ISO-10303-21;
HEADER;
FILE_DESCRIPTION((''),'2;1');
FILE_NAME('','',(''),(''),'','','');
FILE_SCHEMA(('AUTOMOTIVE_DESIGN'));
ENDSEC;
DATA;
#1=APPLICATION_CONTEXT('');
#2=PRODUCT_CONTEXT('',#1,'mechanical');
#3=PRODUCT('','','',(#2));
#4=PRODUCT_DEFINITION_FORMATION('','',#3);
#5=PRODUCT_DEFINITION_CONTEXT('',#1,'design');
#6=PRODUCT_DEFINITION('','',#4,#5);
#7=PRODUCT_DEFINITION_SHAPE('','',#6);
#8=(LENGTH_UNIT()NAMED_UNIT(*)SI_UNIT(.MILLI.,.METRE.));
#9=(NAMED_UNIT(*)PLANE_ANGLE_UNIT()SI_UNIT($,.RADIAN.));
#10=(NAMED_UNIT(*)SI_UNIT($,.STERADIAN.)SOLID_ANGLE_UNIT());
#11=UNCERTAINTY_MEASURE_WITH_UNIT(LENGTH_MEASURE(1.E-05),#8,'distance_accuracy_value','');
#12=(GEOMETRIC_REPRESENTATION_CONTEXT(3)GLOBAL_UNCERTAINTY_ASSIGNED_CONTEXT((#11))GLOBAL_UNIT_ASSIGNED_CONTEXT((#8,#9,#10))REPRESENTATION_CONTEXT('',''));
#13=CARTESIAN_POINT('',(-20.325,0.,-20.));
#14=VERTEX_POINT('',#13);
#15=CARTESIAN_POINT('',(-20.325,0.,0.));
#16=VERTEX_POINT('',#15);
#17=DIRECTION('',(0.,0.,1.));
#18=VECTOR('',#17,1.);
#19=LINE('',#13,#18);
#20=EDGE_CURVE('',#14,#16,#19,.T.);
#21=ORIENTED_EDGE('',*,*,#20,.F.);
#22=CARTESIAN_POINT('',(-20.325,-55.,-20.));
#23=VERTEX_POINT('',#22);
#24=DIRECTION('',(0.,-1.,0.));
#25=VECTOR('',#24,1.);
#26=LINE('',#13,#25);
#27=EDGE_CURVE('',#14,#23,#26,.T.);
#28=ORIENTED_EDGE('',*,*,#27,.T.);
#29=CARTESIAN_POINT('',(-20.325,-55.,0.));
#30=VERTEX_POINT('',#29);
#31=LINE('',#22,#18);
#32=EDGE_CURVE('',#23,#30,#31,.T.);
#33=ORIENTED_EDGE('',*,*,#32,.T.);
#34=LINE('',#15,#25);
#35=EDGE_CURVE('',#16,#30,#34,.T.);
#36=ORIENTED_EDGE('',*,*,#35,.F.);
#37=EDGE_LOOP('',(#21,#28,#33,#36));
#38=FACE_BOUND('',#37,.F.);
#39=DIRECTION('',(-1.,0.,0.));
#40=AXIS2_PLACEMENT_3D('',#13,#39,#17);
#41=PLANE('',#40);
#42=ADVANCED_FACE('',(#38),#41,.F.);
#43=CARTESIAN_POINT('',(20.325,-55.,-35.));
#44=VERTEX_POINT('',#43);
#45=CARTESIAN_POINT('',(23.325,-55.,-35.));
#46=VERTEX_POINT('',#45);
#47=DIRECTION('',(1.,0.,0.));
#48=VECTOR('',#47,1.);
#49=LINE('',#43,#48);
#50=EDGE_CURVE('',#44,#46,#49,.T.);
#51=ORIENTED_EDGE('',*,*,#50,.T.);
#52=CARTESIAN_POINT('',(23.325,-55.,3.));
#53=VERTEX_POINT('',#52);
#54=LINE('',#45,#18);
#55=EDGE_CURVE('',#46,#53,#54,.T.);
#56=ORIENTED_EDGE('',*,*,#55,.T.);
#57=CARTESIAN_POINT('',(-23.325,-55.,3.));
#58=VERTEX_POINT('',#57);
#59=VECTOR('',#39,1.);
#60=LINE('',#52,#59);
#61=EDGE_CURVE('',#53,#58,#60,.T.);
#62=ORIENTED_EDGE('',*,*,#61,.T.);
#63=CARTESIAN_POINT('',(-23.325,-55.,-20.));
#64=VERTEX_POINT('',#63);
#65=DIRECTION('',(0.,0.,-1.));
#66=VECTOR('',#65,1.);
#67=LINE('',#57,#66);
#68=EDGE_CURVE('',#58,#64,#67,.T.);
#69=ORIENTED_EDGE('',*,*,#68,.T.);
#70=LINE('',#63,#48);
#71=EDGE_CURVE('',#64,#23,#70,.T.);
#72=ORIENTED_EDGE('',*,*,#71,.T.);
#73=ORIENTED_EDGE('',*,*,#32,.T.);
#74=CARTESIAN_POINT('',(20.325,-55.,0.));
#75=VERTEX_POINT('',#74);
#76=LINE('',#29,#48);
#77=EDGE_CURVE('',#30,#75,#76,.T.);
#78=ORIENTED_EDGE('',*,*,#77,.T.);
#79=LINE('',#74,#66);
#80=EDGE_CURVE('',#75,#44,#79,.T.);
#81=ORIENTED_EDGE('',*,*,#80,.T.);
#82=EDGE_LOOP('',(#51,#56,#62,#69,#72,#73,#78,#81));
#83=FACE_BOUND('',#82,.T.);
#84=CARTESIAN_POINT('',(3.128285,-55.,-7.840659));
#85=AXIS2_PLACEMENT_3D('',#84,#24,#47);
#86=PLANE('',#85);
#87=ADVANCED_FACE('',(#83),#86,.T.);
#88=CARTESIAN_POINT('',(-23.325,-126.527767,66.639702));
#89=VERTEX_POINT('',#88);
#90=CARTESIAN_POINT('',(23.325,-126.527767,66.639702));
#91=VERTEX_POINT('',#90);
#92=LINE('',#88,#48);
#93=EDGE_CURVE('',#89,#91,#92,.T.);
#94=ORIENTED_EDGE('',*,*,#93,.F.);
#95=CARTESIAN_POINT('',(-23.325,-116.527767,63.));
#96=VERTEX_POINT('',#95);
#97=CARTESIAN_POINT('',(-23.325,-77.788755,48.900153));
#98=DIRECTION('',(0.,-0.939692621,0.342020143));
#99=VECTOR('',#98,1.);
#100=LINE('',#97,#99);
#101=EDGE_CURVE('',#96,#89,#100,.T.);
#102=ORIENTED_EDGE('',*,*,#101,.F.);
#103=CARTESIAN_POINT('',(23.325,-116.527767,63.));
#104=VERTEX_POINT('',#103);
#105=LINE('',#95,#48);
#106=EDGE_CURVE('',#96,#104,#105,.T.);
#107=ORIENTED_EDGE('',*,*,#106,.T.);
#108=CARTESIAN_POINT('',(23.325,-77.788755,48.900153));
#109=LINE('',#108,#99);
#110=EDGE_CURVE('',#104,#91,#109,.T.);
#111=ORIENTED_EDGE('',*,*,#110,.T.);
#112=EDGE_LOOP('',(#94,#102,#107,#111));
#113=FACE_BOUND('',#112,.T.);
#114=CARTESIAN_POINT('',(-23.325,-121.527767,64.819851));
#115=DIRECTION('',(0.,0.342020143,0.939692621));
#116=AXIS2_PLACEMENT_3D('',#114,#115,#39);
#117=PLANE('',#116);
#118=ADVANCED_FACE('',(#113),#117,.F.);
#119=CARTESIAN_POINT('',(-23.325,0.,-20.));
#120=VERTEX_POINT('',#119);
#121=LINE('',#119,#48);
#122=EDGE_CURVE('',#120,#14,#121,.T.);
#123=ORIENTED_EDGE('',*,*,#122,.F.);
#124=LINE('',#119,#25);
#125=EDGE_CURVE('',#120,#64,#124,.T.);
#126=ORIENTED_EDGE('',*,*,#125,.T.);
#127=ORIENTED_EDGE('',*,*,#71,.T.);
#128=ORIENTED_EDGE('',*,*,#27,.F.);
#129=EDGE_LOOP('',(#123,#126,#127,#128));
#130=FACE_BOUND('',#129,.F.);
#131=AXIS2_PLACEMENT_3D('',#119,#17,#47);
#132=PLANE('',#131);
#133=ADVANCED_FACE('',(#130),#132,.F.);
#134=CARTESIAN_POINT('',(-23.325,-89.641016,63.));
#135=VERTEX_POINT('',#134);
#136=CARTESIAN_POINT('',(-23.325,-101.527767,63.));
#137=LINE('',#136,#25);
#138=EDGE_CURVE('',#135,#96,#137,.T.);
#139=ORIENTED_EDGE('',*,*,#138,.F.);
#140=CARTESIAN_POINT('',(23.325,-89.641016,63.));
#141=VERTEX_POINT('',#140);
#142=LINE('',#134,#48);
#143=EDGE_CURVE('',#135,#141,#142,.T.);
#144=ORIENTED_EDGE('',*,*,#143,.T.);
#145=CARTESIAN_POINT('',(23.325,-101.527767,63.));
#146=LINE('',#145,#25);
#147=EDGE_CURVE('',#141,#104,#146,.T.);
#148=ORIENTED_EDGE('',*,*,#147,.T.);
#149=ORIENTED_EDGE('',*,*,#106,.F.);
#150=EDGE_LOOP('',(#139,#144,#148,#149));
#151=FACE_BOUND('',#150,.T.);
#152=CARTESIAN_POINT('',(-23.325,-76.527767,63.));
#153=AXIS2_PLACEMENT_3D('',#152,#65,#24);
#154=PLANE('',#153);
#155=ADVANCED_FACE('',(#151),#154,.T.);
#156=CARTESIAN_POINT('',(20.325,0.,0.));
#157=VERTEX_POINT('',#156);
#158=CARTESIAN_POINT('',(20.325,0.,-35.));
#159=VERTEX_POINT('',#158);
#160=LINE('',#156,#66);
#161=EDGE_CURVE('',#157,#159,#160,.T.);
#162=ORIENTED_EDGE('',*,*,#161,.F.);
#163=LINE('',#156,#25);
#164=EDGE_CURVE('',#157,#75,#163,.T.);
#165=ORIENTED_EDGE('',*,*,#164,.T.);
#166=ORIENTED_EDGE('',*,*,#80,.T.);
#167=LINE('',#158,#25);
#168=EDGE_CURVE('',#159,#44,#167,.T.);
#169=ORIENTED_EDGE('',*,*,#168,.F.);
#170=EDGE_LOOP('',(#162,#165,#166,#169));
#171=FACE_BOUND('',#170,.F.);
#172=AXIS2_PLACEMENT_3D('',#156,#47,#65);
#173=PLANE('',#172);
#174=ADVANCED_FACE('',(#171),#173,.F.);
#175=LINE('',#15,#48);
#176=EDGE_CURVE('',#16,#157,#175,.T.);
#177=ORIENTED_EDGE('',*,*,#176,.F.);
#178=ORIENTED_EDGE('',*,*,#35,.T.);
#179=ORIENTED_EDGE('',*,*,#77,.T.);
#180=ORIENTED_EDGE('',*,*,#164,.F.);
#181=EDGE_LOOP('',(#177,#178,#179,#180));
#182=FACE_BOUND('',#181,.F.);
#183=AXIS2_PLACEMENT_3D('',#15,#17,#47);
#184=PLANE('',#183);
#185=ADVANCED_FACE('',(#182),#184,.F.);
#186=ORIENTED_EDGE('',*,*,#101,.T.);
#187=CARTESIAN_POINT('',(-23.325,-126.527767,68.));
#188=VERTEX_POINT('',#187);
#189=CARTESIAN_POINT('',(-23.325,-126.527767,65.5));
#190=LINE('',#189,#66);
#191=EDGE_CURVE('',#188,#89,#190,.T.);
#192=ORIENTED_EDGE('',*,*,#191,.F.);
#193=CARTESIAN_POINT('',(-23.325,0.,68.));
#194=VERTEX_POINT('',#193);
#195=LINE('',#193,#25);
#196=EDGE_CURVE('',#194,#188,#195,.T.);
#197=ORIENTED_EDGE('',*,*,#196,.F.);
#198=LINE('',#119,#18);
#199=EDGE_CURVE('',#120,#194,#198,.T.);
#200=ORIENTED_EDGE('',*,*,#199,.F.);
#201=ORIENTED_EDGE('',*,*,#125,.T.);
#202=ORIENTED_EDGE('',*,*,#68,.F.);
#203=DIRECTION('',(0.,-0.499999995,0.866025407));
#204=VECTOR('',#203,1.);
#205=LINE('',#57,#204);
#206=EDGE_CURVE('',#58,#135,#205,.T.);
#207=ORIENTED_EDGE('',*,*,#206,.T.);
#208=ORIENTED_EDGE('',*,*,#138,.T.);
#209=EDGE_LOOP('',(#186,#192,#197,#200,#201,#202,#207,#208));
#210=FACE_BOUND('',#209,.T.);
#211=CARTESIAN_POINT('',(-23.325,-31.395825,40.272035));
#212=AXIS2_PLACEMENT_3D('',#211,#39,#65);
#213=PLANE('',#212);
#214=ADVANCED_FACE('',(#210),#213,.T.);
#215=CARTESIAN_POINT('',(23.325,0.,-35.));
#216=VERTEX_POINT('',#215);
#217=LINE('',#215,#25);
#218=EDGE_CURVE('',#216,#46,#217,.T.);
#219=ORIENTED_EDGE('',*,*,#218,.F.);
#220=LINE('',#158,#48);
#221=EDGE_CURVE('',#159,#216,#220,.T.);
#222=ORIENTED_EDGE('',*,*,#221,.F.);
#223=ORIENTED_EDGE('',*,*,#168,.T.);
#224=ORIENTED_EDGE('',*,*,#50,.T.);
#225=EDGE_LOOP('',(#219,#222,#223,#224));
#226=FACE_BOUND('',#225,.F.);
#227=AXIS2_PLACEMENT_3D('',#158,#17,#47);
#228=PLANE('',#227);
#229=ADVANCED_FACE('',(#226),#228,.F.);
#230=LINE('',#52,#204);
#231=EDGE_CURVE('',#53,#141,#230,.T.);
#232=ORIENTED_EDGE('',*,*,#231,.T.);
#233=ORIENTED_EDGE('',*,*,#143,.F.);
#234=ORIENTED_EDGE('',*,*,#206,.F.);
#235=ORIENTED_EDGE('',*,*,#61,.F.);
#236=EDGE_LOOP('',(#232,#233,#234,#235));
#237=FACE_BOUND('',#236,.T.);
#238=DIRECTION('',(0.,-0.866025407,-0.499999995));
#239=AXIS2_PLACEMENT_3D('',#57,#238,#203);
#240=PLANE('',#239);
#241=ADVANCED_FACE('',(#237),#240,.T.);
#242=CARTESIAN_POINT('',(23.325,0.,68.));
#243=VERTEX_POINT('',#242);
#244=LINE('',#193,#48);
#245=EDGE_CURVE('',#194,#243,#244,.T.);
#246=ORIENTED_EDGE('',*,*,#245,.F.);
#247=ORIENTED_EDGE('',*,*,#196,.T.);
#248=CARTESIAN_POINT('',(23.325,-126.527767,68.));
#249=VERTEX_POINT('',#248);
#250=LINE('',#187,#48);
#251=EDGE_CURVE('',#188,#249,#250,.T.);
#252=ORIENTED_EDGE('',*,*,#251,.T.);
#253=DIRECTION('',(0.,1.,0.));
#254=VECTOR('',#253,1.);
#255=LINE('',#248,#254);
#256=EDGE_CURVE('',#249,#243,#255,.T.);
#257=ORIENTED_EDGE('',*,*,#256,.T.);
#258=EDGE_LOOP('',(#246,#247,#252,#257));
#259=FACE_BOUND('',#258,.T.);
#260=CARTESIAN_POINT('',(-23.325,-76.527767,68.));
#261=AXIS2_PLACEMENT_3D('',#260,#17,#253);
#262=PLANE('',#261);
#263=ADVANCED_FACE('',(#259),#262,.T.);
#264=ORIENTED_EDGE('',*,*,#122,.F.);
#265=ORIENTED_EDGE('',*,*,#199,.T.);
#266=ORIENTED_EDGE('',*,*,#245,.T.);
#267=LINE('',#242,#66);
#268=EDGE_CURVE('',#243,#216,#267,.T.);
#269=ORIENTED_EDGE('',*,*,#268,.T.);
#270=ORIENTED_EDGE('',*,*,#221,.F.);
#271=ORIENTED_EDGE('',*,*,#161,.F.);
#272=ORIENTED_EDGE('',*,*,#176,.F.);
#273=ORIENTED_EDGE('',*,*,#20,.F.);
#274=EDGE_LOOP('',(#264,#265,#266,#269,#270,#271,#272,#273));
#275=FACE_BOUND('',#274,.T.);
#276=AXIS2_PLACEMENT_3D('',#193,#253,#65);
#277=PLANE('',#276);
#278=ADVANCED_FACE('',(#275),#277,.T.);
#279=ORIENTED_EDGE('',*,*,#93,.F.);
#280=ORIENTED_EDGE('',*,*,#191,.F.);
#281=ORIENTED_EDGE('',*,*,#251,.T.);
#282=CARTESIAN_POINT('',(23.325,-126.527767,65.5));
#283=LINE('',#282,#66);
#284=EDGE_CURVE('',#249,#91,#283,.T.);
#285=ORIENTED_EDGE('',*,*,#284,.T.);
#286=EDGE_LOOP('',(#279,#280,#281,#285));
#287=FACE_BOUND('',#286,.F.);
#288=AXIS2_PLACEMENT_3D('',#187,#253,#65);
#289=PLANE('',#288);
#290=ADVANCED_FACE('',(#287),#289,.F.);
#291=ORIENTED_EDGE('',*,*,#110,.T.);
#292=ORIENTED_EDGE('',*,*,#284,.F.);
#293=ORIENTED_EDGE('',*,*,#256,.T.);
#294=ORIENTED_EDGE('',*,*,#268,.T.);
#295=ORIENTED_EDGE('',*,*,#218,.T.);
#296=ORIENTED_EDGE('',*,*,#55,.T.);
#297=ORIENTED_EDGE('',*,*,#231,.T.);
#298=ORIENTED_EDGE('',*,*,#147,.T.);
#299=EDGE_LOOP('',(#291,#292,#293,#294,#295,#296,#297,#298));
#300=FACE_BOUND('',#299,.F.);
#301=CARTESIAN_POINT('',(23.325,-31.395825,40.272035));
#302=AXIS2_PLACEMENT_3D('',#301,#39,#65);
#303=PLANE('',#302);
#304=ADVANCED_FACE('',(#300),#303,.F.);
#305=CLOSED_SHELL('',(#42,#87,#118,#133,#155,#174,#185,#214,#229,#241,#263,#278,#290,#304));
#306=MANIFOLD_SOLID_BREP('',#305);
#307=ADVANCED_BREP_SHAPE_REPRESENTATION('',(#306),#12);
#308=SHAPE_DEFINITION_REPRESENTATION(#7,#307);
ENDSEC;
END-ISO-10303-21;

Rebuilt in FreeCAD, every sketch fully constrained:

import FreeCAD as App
import Part
import Sketcher
from FreeCAD import Vector
Q = App.Units.Quantity


def edges_at(feature, points):
    """Names of the edges that pass closest to the given points."""
    edges = feature.Shape.Edges
    near = lambda p: min(range(len(edges)), key=lambda i: edges[i].distToShape(Part.Vertex(*p))[0])
    return sorted({f"Edge{near(p) + 1}" for p in points})

doc = App.newDocument("Part")
params = doc.addObject("Spreadsheet::Sheet", "Params")
for row, (alias, value) in enumerate([
    ("sketch1_width", "3 mm"),
    ("sketch1_height", "23 mm"),
    ("sketch1_height2", "20 mm"),
    ("sketch1_height3", "35 mm"),
    ("sketch1_width2", "40.65 mm"),
    ("pad1_length", "55 mm"),
    ("sketch2_width", "16 mm"),
    ("pad2_length", "46.65 mm"),
    ("sketch3_width", "50 mm"),
    ("sketch3_height", "5 mm"),
    ("pad3_length", "46.65 mm"),
    ("sketch4_width", "39 mm"),
    ("sketch4_height", "65 mm"),
    ("pad4_length", "46.65 mm"),
    ("chamfer_size", "10 mm"),
], start=1):
    params.set(f"A{row}", alias)
    params.set(f"B{row}", "=" + value)
    params.setAlias(f"B{row}", alias)

body = doc.addObject("PartDesign::Body", "Body")

sketch1 = body.newObject("Sketcher::SketchObject", "Sketch")
sketch1.AttachmentSupport = (doc.getObject("XZ_Plane"), [""])
sketch1.MapMode = "FlatFace"
sketch1.addGeometry(Part.LineSegment(Vector(-23.3, 3, 0), Vector(-23.3, -20, 0)), False)
sketch1.addGeometry(Part.LineSegment(Vector(-23.3, -20, 0), Vector(-20.3, -20, 0)), False)
sketch1.addGeometry(Part.LineSegment(Vector(-20.3, -20, 0), Vector(-20.3, 0, 0)), False)
sketch1.addGeometry(Part.LineSegment(Vector(-20.3, 0, 0), Vector(20.3, 0, 0)), False)
sketch1.addGeometry(Part.LineSegment(Vector(20.3, 0, 0), Vector(20.3, -35, 0)), False)
sketch1.addGeometry(Part.LineSegment(Vector(20.3, -35, 0), Vector(23.3, -35, 0)), False)
sketch1.addGeometry(Part.LineSegment(Vector(23.3, -35, 0), Vector(23.3, 3, 0)), False)
sketch1.addGeometry(Part.LineSegment(Vector(23.3, 3, 0), Vector(-23.3, 3, 0)), False)
sketch1.addConstraint(Sketcher.Constraint("Coincident", 0, 2, 1, 1))
sketch1.addConstraint(Sketcher.Constraint("Coincident", 1, 2, 2, 1))
sketch1.addConstraint(Sketcher.Constraint("Coincident", 2, 2, 3, 1))
sketch1.addConstraint(Sketcher.Constraint("Coincident", 3, 2, 4, 1))
sketch1.addConstraint(Sketcher.Constraint("Coincident", 4, 2, 5, 1))
sketch1.addConstraint(Sketcher.Constraint("Coincident", 5, 2, 6, 1))
sketch1.addConstraint(Sketcher.Constraint("Coincident", 6, 2, 7, 1))
sketch1.addConstraint(Sketcher.Constraint("Coincident", 7, 2, 0, 1))
sketch1.addConstraint(Sketcher.Constraint("Vertical", 0))
sketch1.addConstraint(Sketcher.Constraint("Horizontal", 1))
sketch1.addConstraint(Sketcher.Constraint("Vertical", 2))
sketch1.addConstraint(Sketcher.Constraint("Horizontal", 3))
sketch1.addConstraint(Sketcher.Constraint("Vertical", 4))
sketch1.addConstraint(Sketcher.Constraint("Horizontal", 5))
sketch1.addConstraint(Sketcher.Constraint("Vertical", 6))
sketch1.addConstraint(Sketcher.Constraint("Horizontal", 7))
sketch1.addConstraint(Sketcher.Constraint("Symmetric", 2, 2, 3, 2, -1, 1))
sketch1.addConstraint(Sketcher.Constraint("Equal", 1, 5))
sketch1.addConstraint(Sketcher.Constraint("DistanceX", 1, 1, 1, 2, Q("3 mm")))
sketch1.addConstraint(Sketcher.Constraint("DistanceY", 0, 2, 0, 1, Q("23 mm")))
sketch1.addConstraint(Sketcher.Constraint("DistanceY", 2, 1, 2, 2, Q("20 mm")))
sketch1.addConstraint(Sketcher.Constraint("DistanceY", 4, 2, 4, 1, Q("35 mm")))
sketch1.addConstraint(Sketcher.Constraint("DistanceX", 3, 1, 3, 2, Q("40.65 mm")))
sketch1.setExpression("Constraints[18]", "Params.sketch1_width")
sketch1.setExpression("Constraints[19]", "Params.sketch1_height")
sketch1.setExpression("Constraints[20]", "Params.sketch1_height2")
sketch1.setExpression("Constraints[21]", "Params.sketch1_height3")
sketch1.setExpression("Constraints[22]", "Params.sketch1_width2")
pad1 = body.newObject("PartDesign::Pad", "Pad")
pad1.Profile = sketch1
pad1.setExpression("Length", "Params.pad1_length")

sketch2 = body.newObject("Sketcher::SketchObject", "Sketch001")
sketch2.AttachmentSupport = (doc.getObject("YZ_Plane"), [""])
sketch2.MapMode = "FlatFace"
sketch2.AttachmentOffset = App.Placement(Vector(0, 0, -23.325), App.Rotation())
sketch2.addGeometry(Part.LineSegment(Vector(-39, 3, 0), Vector(-55, 3, 0)), False)
sketch2.addGeometry(Part.LineSegment(Vector(-55, 3, 0), Vector(-93, 68, 0)), False)
sketch2.addGeometry(Part.LineSegment(Vector(-93, 68, 0), Vector(-77, 68, 0)), False)
sketch2.addGeometry(Part.LineSegment(Vector(-77, 68, 0), Vector(-39, 3, 0)), False)
sketch2.addConstraint(Sketcher.Constraint("Coincident", 0, 2, 1, 1))
sketch2.addConstraint(Sketcher.Constraint("Coincident", 1, 2, 2, 1))
sketch2.addConstraint(Sketcher.Constraint("Coincident", 2, 2, 3, 1))
sketch2.addConstraint(Sketcher.Constraint("Coincident", 3, 2, 0, 1))
sketch2.addConstraint(Sketcher.Constraint("Horizontal", 0))
sketch2.addConstraint(Sketcher.Constraint("Horizontal", 2))
sketch2.addConstraint(Sketcher.Constraint("Parallel", 1, 3))
sketch2.addConstraint(Sketcher.Constraint("DistanceX", 0, 2, 0, 1, Q("16 mm")))
sketch2.addConstraint(Sketcher.Constraint("Angle", 1, Q("120 deg")))
sketch2.addConstraint(Sketcher.Constraint("DistanceX", 0, 2, -1, 1, Q("55 mm")))
sketch2.addConstraint(Sketcher.Constraint("DistanceY", -1, 1, 0, 2, Q("3 mm")))
sketch2.addConstraint(Sketcher.Constraint("DistanceY", -1, 1, 1, 2, Q("68 mm")))
sketch2.setExpression("Constraints[7]", "Params.sketch2_width")
pad2 = body.newObject("PartDesign::Pad", "Pad001")
pad2.Profile = sketch2
pad2.setExpression("Length", "Params.pad2_length")

sketch3 = body.newObject("Sketcher::SketchObject", "Sketch002")
sketch3.AttachmentSupport = (doc.getObject("YZ_Plane"), [""])
sketch3.MapMode = "FlatFace"
sketch3.AttachmentOffset = App.Placement(Vector(0, 0, -23.325), App.Rotation())
sketch3.addGeometry(Part.LineSegment(Vector(-127, 68, 0), Vector(-77, 68, 0)), False)
sketch3.addGeometry(Part.LineSegment(Vector(-77, 68, 0), Vector(-77, 63, 0)), False)
sketch3.addGeometry(Part.LineSegment(Vector(-77, 63, 0), Vector(-127, 63, 0)), False)
sketch3.addGeometry(Part.LineSegment(Vector(-127, 63, 0), Vector(-127, 68, 0)), False)
sketch3.addConstraint(Sketcher.Constraint("Coincident", 0, 2, 1, 1))
sketch3.addConstraint(Sketcher.Constraint("Coincident", 1, 2, 2, 1))
sketch3.addConstraint(Sketcher.Constraint("Coincident", 2, 2, 3, 1))
sketch3.addConstraint(Sketcher.Constraint("Coincident", 3, 2, 0, 1))
sketch3.addConstraint(Sketcher.Constraint("Horizontal", 0))
sketch3.addConstraint(Sketcher.Constraint("Vertical", 1))
sketch3.addConstraint(Sketcher.Constraint("Horizontal", 2))
sketch3.addConstraint(Sketcher.Constraint("Vertical", 3))
sketch3.addConstraint(Sketcher.Constraint("DistanceX", 0, 1, 0, 2, Q("50 mm")))
sketch3.addConstraint(Sketcher.Constraint("DistanceY", 1, 2, 1, 1, Q("5 mm")))
sketch3.addConstraint(Sketcher.Constraint("DistanceY", -1, 1, 0, 2, Q("68 mm")))
sketch3.addConstraint(Sketcher.Constraint("DistanceX", 0, 2, -1, 1, Q("76.527767 mm")))
sketch3.setExpression("Constraints[8]", "Params.sketch3_width")
sketch3.setExpression("Constraints[9]", "Params.sketch3_height")
pad3 = body.newObject("PartDesign::Pad", "Pad002")
pad3.Profile = sketch3
pad3.setExpression("Length", "Params.pad3_length")

sketch4 = body.newObject("Sketcher::SketchObject", "Sketch003")
sketch4.AttachmentSupport = (doc.getObject("YZ_Plane"), [""])
sketch4.MapMode = "FlatFace"
sketch4.AttachmentOffset = App.Placement(Vector(0, 0, -23.325), App.Rotation())
sketch4.addGeometry(Part.LineSegment(Vector(0, 68, 0), Vector(0, 3, 0)), False)
sketch4.addGeometry(Part.LineSegment(Vector(0, 3, 0), Vector(-39, 3, 0)), False)
sketch4.addGeometry(Part.LineSegment(Vector(-39, 3, 0), Vector(-77, 68, 0)), False)
sketch4.addGeometry(Part.LineSegment(Vector(-77, 68, 0), Vector(0, 68, 0)), False)
sketch4.addConstraint(Sketcher.Constraint("Coincident", 0, 2, 1, 1))
sketch4.addConstraint(Sketcher.Constraint("Coincident", 1, 2, 2, 1))
sketch4.addConstraint(Sketcher.Constraint("Coincident", 2, 2, 3, 1))
sketch4.addConstraint(Sketcher.Constraint("Coincident", 3, 2, 0, 1))
sketch4.addConstraint(Sketcher.Constraint("Vertical", 0))
sketch4.addConstraint(Sketcher.Constraint("Horizontal", 1))
sketch4.addConstraint(Sketcher.Constraint("Horizontal", 3))
sketch4.addConstraint(Sketcher.Constraint("PointOnObject", 0, 2, -2))
sketch4.addConstraint(Sketcher.Constraint("DistanceX", 1, 2, 1, 1, Q("39 mm")))
sketch4.addConstraint(Sketcher.Constraint("DistanceY", 0, 2, 0, 1, Q("65 mm")))
sketch4.addConstraint(Sketcher.Constraint("Angle", 2, Q("120 deg")))
sketch4.addConstraint(Sketcher.Constraint("DistanceY", -1, 1, 0, 2, Q("3 mm")))
sketch4.setExpression("Constraints[8]", "Params.sketch4_width")
sketch4.setExpression("Constraints[9]", "Params.sketch4_height")
pad4 = body.newObject("PartDesign::Pad", "Pad003")
pad4.Profile = sketch4
pad4.setExpression("Length", "Params.pad4_length")
doc.recompute()

chamfer = body.newObject("PartDesign::Chamfer", "Chamfer")
chamfer.Base = (pad4, edges_at(pad4, [(0, -126.528, 63)]))
chamfer.ChamferType = "Distance and Angle"
chamfer.setExpression("Size", "Params.chamfer_size")
chamfer.Angle = 20

doc.recompute()
